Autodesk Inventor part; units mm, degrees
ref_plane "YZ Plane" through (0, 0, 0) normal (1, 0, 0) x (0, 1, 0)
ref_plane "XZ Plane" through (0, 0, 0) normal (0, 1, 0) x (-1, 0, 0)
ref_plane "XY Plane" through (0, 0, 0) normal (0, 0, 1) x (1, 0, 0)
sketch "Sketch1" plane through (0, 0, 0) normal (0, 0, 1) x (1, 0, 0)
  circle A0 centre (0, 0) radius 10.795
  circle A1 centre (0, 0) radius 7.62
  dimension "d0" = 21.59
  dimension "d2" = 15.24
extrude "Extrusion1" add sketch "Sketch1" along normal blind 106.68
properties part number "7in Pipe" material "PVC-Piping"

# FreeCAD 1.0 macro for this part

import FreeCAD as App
import Part
import Sketcher

V = App.Vector
Q = App.Units.Quantity

doc = App.newDocument("Part")
body = doc.addObject("PartDesign::Body", "Body")

sketch1 = doc.addObject("Sketcher::SketchObject", "Sketch")
body.addObject(sketch1)
sketch1.AttachmentSupport = (doc.XY_Plane, [""])
sketch1.MapMode = "FlatFace"
sketch1.addGeometry([
    Part.Circle(V(0, 0, 0), V(0, 0, 1), 11),
    Part.Circle(V(0, 0, 0), V(0, 0, 1), 8),
], False)
sketch1.addConstraint([
    Sketcher.Constraint("Coincident", 0, 3, -1, 1),
    Sketcher.Constraint("Coincident", 1, 3, -1, 1),
    Sketcher.Constraint("Diameter", 1, Q("0.6 in")),
    Sketcher.Constraint("Diameter", 0, Q("0.85 in")),
])
pad1 = doc.addObject("PartDesign::Pad", "Pad")
body.addObject(pad1)
pad1.Profile = sketch1
pad1.Length = Q("4.2 in")

doc.recompute()
